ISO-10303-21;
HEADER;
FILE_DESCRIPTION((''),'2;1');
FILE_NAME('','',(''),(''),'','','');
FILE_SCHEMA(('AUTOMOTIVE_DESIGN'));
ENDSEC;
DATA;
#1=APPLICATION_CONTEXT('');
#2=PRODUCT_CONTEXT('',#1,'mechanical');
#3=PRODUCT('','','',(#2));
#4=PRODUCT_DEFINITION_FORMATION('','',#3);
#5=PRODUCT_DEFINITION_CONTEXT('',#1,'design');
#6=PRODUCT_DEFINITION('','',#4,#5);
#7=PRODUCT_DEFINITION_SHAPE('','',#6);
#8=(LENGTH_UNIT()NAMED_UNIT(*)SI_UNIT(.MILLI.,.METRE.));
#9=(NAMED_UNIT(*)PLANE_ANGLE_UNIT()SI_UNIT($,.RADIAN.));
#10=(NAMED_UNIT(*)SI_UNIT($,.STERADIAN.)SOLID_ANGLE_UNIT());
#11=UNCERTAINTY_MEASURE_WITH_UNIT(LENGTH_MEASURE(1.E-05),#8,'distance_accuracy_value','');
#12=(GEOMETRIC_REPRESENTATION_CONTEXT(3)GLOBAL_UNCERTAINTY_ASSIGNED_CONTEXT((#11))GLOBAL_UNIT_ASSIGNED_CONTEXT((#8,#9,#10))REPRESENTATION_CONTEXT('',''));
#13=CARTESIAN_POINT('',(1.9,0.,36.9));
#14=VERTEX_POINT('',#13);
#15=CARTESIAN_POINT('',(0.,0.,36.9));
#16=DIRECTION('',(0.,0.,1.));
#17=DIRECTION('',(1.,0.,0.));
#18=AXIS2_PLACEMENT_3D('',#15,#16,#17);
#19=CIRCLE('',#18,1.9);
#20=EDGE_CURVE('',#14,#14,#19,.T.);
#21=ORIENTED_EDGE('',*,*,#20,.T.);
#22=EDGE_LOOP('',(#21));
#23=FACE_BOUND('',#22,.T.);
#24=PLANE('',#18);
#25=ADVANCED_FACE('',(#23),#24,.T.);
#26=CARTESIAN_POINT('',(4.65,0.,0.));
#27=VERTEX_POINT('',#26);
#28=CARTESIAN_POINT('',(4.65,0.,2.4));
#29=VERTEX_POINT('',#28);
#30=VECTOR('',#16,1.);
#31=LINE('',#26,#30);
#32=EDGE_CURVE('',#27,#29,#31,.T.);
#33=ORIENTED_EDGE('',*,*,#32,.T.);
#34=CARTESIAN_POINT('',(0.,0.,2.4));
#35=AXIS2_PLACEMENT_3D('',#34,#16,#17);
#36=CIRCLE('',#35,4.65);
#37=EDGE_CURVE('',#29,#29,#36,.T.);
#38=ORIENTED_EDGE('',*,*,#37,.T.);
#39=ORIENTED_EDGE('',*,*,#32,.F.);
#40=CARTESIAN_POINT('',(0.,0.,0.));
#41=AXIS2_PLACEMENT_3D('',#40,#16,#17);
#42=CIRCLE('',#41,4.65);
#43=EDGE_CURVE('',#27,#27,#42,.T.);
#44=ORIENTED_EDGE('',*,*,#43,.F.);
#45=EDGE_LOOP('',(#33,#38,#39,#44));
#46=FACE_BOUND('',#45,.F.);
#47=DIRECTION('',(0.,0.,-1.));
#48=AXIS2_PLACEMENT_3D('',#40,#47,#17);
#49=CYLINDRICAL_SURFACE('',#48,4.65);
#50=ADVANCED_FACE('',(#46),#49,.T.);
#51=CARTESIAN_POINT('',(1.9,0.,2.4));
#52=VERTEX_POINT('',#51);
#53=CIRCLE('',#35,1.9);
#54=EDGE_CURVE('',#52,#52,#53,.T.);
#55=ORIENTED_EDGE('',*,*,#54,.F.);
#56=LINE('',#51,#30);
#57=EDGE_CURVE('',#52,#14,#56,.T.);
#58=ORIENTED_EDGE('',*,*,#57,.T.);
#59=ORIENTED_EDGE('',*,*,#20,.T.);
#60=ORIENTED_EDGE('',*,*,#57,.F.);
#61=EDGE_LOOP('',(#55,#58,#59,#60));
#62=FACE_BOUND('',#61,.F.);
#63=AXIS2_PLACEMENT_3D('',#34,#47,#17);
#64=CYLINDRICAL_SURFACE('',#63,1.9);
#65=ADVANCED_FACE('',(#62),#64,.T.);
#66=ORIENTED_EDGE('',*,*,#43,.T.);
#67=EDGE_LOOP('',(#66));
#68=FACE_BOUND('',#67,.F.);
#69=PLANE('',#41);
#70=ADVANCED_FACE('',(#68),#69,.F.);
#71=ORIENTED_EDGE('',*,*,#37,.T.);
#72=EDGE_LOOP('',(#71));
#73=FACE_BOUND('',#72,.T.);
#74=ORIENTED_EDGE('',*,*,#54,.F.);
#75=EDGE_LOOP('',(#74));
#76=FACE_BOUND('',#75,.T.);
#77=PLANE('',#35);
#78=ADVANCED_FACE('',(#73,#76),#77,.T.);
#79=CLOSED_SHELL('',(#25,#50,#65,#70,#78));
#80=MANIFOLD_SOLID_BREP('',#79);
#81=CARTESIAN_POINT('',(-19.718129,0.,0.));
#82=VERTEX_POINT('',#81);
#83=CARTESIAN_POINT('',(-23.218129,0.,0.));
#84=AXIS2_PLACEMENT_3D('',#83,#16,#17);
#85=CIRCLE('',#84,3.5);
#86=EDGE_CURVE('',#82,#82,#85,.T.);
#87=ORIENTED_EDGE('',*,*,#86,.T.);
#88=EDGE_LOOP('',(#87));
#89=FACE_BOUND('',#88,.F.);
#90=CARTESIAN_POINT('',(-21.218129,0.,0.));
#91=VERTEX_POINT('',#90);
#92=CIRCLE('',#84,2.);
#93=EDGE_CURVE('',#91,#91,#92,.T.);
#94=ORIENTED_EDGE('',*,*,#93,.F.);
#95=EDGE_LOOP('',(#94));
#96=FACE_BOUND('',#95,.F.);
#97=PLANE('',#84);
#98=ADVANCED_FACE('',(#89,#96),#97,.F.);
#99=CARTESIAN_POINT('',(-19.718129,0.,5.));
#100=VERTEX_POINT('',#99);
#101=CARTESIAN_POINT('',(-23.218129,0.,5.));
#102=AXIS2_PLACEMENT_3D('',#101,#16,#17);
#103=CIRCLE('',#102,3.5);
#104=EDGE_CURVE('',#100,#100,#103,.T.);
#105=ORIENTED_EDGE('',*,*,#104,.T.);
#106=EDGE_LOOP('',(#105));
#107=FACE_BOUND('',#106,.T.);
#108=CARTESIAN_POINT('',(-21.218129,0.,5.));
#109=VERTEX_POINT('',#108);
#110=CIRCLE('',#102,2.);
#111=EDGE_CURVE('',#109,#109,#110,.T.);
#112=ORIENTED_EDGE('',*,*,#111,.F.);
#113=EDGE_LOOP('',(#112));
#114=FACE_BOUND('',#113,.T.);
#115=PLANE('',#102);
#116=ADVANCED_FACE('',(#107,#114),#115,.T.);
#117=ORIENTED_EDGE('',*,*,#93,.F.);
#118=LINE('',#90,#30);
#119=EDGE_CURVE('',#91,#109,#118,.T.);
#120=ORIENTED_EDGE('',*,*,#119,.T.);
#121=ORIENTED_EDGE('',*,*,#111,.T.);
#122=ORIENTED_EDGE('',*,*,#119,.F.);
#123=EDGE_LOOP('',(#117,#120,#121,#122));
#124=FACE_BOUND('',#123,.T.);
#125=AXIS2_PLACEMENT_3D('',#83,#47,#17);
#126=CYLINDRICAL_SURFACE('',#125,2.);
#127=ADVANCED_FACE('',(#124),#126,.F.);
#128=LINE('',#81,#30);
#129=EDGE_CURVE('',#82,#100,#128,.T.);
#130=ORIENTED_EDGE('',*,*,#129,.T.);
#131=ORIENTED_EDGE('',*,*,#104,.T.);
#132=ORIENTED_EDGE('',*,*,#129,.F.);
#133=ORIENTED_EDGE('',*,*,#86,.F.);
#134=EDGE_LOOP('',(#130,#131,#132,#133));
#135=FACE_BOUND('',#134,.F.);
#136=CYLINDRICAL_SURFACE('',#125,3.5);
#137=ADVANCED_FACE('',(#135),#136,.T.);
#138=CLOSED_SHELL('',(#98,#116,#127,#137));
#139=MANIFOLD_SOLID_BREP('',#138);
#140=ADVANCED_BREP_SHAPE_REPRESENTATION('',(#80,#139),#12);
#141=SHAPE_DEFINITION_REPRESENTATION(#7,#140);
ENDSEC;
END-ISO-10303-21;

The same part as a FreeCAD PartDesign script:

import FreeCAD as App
import Part
import Sketcher

V = App.Vector

doc = App.newDocument("Part")
body = doc.addObject("PartDesign::Body", "Body")

# Sketch on XY plane
sketch1 = doc.addObject("Sketcher::SketchObject", "Sketch")
body.addObject(sketch1)
sketch1.AttachmentSupport = (doc.XY_Plane, [""])
sketch1.MapMode = "FlatFace"
sketch1.addGeometry(Part.Circle(V(0, 0, 0), V(0, 0, 1), 4.65), False)
sketch1.addConstraint(Sketcher.Constraint("Coincident", 0, 3, -1, 1))
sketch1.addConstraint(Sketcher.Constraint("Diameter", 0, 9.3))
pad1 = doc.addObject("PartDesign::Pad", "Pad")
body.addObject(pad1)
pad1.Profile = sketch1
pad1.Length = 2.4

# Sketch on XY plane
sketch2 = doc.addObject("Sketcher::SketchObject", "Sketch001")
body.addObject(sketch2)
sketch2.AttachmentSupport = (doc.XY_Plane, [""])
sketch2.MapMode = "FlatFace"
sketch2.AttachmentOffset = App.Placement(V(0, 0, 2.4), App.Rotation())
sketch2.addGeometry(Part.Circle(V(0, 0, 0), V(0, 0, 1), 1.9), False)
sketch2.addConstraint(Sketcher.Constraint("Coincident", 0, 3, -1, 1))
sketch2.addConstraint(Sketcher.Constraint("Diameter", 0, 3.8))
pad2 = doc.addObject("PartDesign::Pad", "Pad001")
body.addObject(pad2)
pad2.Profile = sketch2
pad2.Length = 34.5
body2 = doc.addObject("PartDesign::Body", "Body001")

# Sketch on XY plane
sketch3 = doc.addObject("Sketcher::SketchObject", "Sketch002")
body2.addObject(sketch3)
sketch3.AttachmentSupport = (doc.getObject("XY_Plane001"), [""])
sketch3.MapMode = "FlatFace"
sketch3.addGeometry(Part.Circle(V(-23.218129, 0, 0), V(0, 0, 1), 3.5), False)
sketch3.addGeometry(Part.Circle(V(-23.218129, 0, 0), V(0, 0, 1), 2), False)
sketch3.addConstraint(Sketcher.Constraint("Coincident", 1, 3, 0, 3))
sketch3.addConstraint(Sketcher.Constraint("PointOnObject", 0, 3, -1))
sketch3.addConstraint(Sketcher.Constraint("Diameter", 0, 7.0))
sketch3.addConstraint(Sketcher.Constraint("Diameter", 1, 4.0))
sketch3.addConstraint(Sketcher.Constraint("DistanceX", 0, 3, -1, 1, 23.218129))
pad3 = doc.addObject("PartDesign::Pad", "Pad002")
body2.addObject(pad3)
pad3.Profile = sketch3
pad3.Length = 5

doc.recompute()
